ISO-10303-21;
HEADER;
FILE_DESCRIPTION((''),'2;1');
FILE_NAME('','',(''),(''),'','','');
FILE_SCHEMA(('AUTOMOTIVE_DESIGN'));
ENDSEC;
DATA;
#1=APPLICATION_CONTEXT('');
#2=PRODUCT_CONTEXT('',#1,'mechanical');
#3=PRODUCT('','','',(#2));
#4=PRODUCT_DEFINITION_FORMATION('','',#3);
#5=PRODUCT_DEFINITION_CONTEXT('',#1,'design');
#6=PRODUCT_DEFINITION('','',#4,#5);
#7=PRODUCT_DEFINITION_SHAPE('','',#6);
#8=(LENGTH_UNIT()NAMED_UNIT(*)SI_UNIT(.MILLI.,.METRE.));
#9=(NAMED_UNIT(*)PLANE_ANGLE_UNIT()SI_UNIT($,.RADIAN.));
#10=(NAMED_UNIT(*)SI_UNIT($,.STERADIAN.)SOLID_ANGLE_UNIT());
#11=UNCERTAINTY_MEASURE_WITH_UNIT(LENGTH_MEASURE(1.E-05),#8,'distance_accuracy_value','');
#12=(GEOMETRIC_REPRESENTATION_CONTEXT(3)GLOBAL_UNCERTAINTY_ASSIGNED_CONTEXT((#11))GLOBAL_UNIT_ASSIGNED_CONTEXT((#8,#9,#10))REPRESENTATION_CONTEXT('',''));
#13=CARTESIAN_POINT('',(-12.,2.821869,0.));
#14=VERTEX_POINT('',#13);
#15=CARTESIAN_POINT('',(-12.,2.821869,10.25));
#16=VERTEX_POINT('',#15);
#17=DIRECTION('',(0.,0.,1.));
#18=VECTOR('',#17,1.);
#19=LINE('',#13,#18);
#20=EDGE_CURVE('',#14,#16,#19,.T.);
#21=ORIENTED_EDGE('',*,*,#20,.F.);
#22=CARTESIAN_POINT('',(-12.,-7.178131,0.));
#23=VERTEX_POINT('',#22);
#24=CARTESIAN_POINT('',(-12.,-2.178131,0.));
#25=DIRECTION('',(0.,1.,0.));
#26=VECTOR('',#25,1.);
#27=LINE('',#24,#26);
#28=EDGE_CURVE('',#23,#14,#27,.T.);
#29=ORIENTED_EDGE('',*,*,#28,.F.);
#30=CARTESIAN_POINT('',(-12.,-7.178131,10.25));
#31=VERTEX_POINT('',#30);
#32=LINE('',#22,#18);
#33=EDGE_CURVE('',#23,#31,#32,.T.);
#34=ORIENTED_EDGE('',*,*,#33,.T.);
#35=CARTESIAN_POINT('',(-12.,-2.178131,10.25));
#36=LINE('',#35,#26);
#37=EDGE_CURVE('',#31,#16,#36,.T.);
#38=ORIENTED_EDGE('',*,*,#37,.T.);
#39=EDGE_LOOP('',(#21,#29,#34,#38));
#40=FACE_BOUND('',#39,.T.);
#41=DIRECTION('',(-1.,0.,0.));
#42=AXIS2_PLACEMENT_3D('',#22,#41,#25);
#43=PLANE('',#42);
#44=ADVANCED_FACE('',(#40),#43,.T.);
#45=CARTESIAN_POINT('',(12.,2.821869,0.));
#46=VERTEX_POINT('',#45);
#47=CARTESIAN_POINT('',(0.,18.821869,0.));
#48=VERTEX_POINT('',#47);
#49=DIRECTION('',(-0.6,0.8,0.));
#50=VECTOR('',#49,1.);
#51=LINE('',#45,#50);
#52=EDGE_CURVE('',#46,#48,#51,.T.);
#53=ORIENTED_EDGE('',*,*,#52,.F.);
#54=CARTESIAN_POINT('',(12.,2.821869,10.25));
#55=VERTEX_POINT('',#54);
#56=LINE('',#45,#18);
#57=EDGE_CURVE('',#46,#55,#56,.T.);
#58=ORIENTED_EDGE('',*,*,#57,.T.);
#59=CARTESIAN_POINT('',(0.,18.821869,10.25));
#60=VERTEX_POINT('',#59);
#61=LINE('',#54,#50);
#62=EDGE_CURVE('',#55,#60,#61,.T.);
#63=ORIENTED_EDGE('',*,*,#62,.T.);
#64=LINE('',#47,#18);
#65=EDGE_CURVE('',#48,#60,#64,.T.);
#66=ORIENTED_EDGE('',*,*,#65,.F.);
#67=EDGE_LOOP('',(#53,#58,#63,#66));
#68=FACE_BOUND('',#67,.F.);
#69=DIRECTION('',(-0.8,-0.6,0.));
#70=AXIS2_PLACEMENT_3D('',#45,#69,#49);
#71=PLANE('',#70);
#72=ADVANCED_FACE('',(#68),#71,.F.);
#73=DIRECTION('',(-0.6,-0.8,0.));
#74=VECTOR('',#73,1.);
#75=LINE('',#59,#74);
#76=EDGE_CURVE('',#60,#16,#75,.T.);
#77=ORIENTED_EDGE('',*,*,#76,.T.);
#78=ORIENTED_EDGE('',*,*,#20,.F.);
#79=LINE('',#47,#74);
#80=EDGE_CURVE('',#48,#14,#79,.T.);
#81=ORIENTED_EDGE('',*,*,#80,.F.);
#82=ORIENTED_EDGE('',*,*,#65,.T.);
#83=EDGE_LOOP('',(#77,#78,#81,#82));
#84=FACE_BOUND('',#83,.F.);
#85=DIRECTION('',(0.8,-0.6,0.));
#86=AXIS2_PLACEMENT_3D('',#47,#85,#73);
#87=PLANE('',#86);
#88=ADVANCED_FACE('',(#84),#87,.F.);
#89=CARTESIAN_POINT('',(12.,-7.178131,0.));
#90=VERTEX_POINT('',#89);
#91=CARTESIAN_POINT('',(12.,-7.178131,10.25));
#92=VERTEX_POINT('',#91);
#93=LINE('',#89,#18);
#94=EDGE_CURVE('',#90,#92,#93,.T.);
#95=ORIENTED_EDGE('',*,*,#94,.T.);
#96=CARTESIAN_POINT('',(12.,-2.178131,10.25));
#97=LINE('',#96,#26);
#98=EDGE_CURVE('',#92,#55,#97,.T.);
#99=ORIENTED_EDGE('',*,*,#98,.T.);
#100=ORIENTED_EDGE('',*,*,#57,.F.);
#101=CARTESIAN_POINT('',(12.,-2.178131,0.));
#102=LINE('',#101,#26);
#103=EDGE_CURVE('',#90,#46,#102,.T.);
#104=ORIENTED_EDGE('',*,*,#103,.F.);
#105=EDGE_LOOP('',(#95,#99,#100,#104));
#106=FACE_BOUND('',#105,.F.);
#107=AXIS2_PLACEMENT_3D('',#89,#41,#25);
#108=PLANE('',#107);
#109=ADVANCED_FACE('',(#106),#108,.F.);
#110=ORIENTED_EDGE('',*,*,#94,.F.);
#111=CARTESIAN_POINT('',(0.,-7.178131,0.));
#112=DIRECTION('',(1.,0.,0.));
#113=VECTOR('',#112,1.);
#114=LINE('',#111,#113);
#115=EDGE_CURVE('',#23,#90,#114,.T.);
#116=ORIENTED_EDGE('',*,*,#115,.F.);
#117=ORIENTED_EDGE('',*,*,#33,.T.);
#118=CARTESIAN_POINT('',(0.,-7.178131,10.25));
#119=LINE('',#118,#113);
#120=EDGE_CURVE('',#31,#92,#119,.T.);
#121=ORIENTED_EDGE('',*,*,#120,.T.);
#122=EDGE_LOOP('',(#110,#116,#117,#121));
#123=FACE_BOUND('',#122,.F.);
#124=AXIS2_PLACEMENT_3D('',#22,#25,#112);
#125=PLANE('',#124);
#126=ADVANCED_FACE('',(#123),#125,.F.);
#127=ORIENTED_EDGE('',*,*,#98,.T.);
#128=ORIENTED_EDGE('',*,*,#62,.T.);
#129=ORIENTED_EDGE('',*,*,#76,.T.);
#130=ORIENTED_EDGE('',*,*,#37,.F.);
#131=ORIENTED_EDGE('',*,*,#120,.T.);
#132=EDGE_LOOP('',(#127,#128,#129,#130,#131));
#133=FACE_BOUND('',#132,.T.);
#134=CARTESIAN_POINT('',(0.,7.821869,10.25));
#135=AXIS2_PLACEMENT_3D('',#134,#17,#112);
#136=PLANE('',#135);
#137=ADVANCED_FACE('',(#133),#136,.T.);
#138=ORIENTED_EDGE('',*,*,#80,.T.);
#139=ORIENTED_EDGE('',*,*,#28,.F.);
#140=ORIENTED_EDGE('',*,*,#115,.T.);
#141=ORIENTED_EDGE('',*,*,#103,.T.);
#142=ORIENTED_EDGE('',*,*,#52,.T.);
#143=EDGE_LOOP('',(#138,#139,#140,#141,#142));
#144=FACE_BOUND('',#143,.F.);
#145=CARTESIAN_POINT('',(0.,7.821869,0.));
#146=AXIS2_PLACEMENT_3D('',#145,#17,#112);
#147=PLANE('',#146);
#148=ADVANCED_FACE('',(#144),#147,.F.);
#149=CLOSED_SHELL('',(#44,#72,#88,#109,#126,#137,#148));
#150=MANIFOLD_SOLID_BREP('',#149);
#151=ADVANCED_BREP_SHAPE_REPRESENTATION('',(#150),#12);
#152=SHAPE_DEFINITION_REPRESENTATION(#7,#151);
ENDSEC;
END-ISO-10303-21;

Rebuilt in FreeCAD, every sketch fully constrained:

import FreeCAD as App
import Part
import Sketcher
from FreeCAD import Vector
Q = App.Units.Quantity

doc = App.newDocument("Part")
body = doc.addObject("PartDesign::Body", "Body")

# Sketch on XY plane
sketch1 = body.newObject("Sketcher::SketchObject", "Sketch")
sketch1.AttachmentSupport = (doc.getObject("XY_Plane"), [""])
sketch1.MapMode = "FlatFace"
sketch1.addGeometry([
    Part.LineSegment(Vector(12, 2.821869, 0), Vector(0, 18.821869, 0)),  # 0
    Part.LineSegment(Vector(0, 18.821869, 0), Vector(-12, 2.821869, 0)),  # 1
    Part.LineSegment(Vector(-12, 2.821869, 0), Vector(-12, -7.178131, 0)),  # 2
    Part.LineSegment(Vector(-12, -7.178131, 0), Vector(12, -7.178131, 0)),  # 3
    Part.LineSegment(Vector(12, -7.178131, 0), Vector(12, 2.821869, 0)),  # 4
], False)
sketch1.addConstraint([
    Sketcher.Constraint("Coincident", 0, 2, 1, 1),
    Sketcher.Constraint("Coincident", 1, 2, 2, 1),
    Sketcher.Constraint("Coincident", 2, 2, 3, 1),
    Sketcher.Constraint("Coincident", 3, 2, 4, 1),
    Sketcher.Constraint("Coincident", 4, 2, 0, 1),
    Sketcher.Constraint("Vertical", 2),
    Sketcher.Constraint("Horizontal", 3),
    Sketcher.Constraint("Vertical", 4),
    Sketcher.Constraint("Symmetric", 1, 2, 4, 2, -2),
    Sketcher.Constraint("PointOnObject", 0, 2, -2),
    Sketcher.Constraint("DistanceX", 3, 1, 3, 2, Q("24 mm")),
    Sketcher.Constraint("DistanceY", 2, 2, 2, 1, Q("10 mm")),
    Sketcher.Constraint("Distance", 0, Q("20 mm")),
    Sketcher.Constraint("DistanceY", -1, 1, 0, 2, Q("18.821869 mm")),
])
pad1 = body.newObject("PartDesign::Pad", "Pad")
pad1.Profile = sketch1
pad1.Length = 10.25

doc.recompute()
